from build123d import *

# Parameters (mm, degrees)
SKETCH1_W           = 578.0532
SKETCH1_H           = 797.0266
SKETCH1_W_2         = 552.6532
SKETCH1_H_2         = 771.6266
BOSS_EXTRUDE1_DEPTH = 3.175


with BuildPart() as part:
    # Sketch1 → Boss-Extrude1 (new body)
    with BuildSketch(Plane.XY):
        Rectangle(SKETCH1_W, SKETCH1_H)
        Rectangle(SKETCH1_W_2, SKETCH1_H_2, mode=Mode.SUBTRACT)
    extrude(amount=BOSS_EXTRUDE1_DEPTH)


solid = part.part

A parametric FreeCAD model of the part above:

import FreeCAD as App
import Part
import Sketcher
from FreeCAD import Vector
Q = App.Units.Quantity

doc = App.newDocument("Part")
params = doc.addObject("Spreadsheet::Sheet", "Params")
for row, (alias, value) in enumerate([
    ("sketch1_width", "22.758 in"),
    ("sketch1_height", "31.379 in"),
    ("pad1_length", "0.125 in"),
], start=1):
    params.set(f"A{row}", alias)
    params.set(f"B{row}", "=" + value)
    params.setAlias(f"B{row}", alias)

body = doc.addObject("PartDesign::Body", "Body")

# Sketch on XY plane
sketch1 = body.newObject("Sketcher::SketchObject", "Sketch")
sketch1.AttachmentSupport = (doc.getObject("XY_Plane"), [""])
sketch1.MapMode = "FlatFace"
sketch1.addGeometry([
    Part.LineSegment(Vector(-289.0266, 398.5133, 0), Vector(-289.0266, -398.5133, 0)),  # 0
    Part.LineSegment(Vector(-289.0266, -398.5133, 0), Vector(289.0266, -398.5133, 0)),  # 1
    Part.LineSegment(Vector(289.0266, -398.5133, 0), Vector(289.0266, 398.5133, 0)),  # 2
    Part.LineSegment(Vector(289.0266, 398.5133, 0), Vector(-289.0266, 398.5133, 0)),  # 3
    Part.LineSegment(Vector(276.3266, -385.8133, 0), Vector(-276.3266, -385.8133, 0)),  # 4
    Part.LineSegment(Vector(-276.3266, -385.8133, 0), Vector(-276.3266, 385.8133, 0)),  # 5
    Part.LineSegment(Vector(-276.3266, 385.8133, 0), Vector(276.3266, 385.8133, 0)),  # 6
    Part.LineSegment(Vector(276.3266, 385.8133, 0), Vector(276.3266, -385.8133, 0)),  # 7
], False)
sketch1.addConstraint([
    Sketcher.Constraint("Coincident", 0, 2, 1, 1),
    Sketcher.Constraint("Coincident", 1, 2, 2, 1),
    Sketcher.Constraint("Coincident", 2, 2, 3, 1),
    Sketcher.Constraint("Coincident", 3, 2, 0, 1),
    Sketcher.Constraint("Coincident", 4, 2, 5, 1),
    Sketcher.Constraint("Coincident", 5, 2, 6, 1),
    Sketcher.Constraint("Coincident", 6, 2, 7, 1),
    Sketcher.Constraint("Coincident", 7, 2, 4, 1),
    Sketcher.Constraint("Vertical", 0),
    Sketcher.Constraint("Horizontal", 1),
    Sketcher.Constraint("Vertical", 2),
    Sketcher.Constraint("Horizontal", 3),
    Sketcher.Constraint("Horizontal", 4),
    Sketcher.Constraint("Vertical", 5),
    Sketcher.Constraint("Horizontal", 6),
    Sketcher.Constraint("Vertical", 7),
    Sketcher.Constraint("Symmetric", 0, 2, 2, 2, -1, 1),
    Sketcher.Constraint("Symmetric", 4, 2, 6, 2, -1, 1),
    Sketcher.Constraint("DistanceX", 0, 2, 4, 2, Q("0.5 in")),
    Sketcher.Constraint("DistanceY", 0, 2, 4, 2, Q("0.5 in")),
    Sketcher.Constraint("DistanceX", 1, 1, 1, 2, Q("22.758 in")),
    Sketcher.Constraint("DistanceY", 0, 2, 0, 1, Q("31.379 in")),
])
sketch1.setExpression("Constraints[20]", "Params.sketch1_width")
sketch1.setExpression("Constraints[21]", "Params.sketch1_height")
pad1 = body.newObject("PartDesign::Pad", "Pad")
pad1.Profile = sketch1
pad1.setExpression("Length", "Params.pad1_length")

doc.recompute()
